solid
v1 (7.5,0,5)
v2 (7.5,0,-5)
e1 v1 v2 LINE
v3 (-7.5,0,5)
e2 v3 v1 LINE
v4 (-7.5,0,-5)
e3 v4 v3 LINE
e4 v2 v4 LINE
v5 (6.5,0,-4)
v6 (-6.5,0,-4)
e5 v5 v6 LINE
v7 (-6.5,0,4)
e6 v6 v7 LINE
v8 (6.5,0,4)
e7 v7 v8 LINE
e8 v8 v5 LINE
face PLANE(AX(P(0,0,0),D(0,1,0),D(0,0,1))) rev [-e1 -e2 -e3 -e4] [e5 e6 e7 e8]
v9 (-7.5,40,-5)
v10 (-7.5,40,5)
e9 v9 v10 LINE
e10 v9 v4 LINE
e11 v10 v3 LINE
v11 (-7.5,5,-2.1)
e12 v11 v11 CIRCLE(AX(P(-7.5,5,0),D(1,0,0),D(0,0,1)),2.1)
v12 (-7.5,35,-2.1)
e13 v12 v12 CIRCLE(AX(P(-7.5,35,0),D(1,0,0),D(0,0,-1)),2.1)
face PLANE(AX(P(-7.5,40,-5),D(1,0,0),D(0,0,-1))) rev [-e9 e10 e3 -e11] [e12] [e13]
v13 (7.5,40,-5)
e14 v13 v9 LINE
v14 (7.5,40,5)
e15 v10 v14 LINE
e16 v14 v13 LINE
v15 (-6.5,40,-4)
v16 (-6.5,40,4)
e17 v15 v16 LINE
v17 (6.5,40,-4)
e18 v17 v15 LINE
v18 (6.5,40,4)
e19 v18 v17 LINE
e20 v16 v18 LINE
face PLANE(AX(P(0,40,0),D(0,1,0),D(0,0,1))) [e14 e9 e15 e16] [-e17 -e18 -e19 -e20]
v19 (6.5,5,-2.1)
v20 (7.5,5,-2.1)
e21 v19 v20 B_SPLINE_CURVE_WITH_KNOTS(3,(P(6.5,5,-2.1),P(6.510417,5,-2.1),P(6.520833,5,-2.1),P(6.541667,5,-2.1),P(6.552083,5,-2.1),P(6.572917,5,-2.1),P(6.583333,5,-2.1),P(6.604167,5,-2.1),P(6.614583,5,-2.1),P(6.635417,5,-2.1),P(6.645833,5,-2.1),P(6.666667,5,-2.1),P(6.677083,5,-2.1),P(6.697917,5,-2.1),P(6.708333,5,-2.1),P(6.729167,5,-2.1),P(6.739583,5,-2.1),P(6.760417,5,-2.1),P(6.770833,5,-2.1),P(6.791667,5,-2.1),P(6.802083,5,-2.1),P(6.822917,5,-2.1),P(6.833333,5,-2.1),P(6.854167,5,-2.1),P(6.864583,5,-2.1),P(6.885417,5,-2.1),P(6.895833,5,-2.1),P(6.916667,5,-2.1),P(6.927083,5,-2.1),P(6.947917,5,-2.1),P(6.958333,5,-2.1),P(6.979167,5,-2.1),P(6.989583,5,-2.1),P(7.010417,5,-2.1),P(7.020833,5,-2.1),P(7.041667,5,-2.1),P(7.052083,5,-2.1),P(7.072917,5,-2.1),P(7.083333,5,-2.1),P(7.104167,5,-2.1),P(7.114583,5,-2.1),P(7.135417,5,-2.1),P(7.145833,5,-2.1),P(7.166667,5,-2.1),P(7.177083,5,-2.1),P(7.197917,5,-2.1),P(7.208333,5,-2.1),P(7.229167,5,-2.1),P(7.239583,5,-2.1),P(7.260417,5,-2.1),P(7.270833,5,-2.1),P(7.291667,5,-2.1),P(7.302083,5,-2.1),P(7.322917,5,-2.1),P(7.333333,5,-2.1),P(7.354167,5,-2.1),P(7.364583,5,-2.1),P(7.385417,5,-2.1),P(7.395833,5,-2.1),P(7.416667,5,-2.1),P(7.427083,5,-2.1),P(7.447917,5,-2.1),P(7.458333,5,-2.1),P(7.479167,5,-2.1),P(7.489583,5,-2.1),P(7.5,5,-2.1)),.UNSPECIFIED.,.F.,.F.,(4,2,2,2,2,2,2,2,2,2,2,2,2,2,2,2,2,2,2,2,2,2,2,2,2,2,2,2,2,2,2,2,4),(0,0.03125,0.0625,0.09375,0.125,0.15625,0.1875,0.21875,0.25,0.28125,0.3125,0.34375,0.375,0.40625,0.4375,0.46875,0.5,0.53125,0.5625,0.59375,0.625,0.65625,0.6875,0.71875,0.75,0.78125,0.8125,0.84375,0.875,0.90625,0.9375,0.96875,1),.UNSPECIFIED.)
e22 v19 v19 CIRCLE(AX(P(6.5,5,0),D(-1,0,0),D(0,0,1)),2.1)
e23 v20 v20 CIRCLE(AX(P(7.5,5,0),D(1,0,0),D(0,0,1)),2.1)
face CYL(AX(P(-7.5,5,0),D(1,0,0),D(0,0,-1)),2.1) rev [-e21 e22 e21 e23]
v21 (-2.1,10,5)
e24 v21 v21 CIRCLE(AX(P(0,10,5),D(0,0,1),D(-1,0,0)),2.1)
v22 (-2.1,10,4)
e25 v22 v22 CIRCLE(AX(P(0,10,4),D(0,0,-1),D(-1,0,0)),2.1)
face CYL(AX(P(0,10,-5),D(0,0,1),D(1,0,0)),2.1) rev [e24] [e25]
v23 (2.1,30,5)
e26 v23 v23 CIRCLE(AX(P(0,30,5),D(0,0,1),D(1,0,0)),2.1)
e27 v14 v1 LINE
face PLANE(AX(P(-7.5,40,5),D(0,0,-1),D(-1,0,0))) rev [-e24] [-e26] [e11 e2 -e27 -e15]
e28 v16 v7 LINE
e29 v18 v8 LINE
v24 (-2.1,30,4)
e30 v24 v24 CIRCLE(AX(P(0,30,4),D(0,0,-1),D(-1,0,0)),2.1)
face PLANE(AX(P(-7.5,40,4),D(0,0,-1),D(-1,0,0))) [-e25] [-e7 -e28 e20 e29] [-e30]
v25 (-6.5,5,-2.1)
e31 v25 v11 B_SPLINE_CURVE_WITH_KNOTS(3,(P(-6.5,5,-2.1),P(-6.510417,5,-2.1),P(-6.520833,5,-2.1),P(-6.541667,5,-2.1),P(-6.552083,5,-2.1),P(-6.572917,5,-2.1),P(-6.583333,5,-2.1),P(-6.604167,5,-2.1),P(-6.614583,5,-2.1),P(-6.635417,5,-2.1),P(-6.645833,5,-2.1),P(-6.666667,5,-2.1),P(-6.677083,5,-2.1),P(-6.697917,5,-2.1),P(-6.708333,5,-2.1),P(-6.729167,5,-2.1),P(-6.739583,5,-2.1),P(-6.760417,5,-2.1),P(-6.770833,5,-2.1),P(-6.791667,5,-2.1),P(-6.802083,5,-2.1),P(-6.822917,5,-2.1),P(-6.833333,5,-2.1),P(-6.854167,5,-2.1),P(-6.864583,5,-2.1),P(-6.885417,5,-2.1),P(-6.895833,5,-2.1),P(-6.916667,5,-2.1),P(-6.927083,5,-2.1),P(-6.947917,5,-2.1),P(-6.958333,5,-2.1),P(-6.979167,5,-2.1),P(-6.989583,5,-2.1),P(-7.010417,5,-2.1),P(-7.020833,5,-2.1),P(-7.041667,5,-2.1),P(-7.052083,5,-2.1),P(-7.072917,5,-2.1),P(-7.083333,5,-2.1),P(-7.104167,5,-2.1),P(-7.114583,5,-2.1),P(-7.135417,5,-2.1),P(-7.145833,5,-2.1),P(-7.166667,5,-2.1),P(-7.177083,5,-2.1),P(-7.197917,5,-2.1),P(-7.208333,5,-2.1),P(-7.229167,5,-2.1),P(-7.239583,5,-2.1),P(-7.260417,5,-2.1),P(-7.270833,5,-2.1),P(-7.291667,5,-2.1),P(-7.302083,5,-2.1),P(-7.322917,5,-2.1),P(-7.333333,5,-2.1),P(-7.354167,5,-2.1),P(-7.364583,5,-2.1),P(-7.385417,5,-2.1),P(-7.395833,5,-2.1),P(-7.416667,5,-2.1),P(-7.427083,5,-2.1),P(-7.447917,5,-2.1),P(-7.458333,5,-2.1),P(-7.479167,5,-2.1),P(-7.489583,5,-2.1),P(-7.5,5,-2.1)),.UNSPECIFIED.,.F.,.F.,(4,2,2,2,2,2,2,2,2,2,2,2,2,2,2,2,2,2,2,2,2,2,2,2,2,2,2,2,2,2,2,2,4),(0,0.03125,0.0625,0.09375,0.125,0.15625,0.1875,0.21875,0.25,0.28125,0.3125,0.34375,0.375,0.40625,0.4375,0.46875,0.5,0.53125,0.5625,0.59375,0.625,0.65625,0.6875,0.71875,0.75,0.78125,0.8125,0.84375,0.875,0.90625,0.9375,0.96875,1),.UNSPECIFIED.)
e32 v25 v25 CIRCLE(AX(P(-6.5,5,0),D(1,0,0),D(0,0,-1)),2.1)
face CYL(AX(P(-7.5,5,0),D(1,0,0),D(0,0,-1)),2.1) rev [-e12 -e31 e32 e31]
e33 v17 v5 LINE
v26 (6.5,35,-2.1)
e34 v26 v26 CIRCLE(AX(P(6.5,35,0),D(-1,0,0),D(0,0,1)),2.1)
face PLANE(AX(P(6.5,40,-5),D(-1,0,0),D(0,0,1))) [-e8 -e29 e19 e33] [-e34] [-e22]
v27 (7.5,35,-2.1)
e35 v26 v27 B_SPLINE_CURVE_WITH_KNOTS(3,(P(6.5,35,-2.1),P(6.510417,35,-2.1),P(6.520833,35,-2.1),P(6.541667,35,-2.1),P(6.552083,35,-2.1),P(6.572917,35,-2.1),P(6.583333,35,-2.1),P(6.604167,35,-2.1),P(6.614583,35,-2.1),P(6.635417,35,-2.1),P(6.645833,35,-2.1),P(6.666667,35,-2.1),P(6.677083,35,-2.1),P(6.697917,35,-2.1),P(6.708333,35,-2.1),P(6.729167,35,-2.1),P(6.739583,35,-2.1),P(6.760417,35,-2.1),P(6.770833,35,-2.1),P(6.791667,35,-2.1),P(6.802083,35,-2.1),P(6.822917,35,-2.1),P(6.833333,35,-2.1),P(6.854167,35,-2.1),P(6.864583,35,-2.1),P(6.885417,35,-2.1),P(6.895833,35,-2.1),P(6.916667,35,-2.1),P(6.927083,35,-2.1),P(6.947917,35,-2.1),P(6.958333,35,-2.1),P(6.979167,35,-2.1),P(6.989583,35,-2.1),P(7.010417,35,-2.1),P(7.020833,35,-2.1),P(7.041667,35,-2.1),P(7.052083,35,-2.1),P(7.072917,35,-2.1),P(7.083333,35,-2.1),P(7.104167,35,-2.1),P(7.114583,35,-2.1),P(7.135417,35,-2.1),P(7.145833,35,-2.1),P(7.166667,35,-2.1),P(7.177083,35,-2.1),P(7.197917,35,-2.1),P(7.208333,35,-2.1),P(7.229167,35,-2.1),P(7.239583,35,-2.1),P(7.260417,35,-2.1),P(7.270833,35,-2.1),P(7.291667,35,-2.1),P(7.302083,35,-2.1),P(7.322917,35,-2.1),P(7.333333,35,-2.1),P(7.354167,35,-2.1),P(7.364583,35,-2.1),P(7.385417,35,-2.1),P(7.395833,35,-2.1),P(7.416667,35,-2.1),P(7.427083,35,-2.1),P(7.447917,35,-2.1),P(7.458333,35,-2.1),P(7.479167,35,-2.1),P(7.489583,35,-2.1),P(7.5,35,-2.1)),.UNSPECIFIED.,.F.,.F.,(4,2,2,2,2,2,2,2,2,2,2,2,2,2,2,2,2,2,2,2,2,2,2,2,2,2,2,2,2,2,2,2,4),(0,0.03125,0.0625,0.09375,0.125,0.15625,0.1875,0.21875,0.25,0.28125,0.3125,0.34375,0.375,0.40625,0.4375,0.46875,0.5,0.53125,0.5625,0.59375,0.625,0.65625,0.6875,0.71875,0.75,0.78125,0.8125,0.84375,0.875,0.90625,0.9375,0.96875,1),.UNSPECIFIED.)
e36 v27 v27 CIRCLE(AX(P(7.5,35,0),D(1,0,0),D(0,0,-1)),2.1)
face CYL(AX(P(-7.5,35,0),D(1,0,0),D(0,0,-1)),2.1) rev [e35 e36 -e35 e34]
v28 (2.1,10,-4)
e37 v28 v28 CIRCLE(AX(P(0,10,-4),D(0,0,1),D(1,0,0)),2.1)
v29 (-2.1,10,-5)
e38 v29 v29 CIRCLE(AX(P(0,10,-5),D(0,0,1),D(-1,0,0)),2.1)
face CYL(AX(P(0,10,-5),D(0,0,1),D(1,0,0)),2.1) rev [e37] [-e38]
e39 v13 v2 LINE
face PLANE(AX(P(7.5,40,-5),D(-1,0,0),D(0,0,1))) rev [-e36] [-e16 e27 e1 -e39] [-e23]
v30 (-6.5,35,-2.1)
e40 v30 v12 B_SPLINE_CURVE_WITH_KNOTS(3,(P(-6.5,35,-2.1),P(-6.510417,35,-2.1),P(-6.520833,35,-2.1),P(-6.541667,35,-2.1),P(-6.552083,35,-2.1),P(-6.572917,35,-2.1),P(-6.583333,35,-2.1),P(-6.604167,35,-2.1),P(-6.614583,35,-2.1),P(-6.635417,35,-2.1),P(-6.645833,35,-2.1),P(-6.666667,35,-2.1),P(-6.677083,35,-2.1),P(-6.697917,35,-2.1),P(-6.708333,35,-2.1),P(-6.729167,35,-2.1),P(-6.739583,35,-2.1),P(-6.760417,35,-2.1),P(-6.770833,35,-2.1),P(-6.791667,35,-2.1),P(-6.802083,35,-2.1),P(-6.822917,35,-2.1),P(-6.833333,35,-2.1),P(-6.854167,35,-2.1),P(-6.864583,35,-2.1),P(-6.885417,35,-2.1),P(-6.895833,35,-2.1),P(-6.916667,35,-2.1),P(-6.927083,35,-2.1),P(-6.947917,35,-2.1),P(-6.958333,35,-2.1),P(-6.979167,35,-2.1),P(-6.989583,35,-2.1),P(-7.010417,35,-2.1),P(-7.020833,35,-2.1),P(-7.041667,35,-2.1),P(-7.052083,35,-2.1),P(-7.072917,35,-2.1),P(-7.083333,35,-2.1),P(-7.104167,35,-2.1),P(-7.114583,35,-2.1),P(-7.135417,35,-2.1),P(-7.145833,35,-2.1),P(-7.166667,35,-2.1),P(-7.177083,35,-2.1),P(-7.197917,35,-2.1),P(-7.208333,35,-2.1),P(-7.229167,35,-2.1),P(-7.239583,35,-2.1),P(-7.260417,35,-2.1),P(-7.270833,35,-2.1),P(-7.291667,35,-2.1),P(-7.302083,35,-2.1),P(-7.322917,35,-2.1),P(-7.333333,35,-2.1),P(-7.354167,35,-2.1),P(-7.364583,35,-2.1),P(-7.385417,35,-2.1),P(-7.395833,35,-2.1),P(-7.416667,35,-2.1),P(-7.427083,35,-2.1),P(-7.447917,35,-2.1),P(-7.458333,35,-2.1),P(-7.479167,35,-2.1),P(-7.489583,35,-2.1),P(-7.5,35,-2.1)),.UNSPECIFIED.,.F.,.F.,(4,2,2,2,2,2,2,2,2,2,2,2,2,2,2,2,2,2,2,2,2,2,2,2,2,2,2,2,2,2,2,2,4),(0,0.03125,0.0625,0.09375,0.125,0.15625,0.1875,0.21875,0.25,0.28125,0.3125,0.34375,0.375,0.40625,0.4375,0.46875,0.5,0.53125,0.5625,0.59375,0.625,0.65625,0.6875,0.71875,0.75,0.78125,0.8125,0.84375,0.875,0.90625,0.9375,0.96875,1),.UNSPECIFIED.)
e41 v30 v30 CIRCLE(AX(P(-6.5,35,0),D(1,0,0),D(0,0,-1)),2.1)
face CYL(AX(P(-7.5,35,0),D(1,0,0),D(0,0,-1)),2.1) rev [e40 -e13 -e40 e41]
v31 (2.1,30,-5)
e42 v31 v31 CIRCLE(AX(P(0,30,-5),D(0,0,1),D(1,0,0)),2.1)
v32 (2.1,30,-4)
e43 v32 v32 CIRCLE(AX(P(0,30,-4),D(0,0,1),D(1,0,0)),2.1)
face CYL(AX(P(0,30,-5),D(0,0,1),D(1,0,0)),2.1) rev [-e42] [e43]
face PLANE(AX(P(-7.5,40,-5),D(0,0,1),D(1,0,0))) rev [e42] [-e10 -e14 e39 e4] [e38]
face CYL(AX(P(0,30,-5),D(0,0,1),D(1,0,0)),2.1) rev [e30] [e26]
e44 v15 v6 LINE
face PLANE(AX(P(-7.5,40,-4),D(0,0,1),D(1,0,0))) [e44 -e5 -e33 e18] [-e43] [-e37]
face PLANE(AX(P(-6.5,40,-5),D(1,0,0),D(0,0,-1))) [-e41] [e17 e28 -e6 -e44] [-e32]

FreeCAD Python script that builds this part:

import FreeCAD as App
import Part
import Sketcher

V = App.Vector


def add_polygon(sketch, points):
    """Adds a closed chain of lines whose ends are joined by coincident constraints."""
    first, n = sketch.GeometryCount, len(points)
    for a, b in zip(points, points[1:] + points[:1]):
        sketch.addGeometry(Part.LineSegment(App.Vector(*a, 0), App.Vector(*b, 0)), False)
    for i in range(n):
        sketch.addConstraint(Sketcher.Constraint("Coincident", first + i, 2, first + (i + 1) % n, 1))

doc = App.newDocument("Part")
body = doc.addObject("PartDesign::Body", "Body")

# Sketch on XZ plane
sketch1 = doc.addObject("Sketcher::SketchObject", "Sketch")
body.addObject(sketch1)
sketch1.AttachmentSupport = (doc.XZ_Plane, [""])
sketch1.MapMode = "FlatFace"
add_polygon(sketch1, [(-8, -5), (-8, 5), (8, 5), (8, -5)])  # lines 0-3
add_polygon(sketch1, [(6, 4), (-6, 4), (-6, -4), (6, -4)])  # lines 4-7
sketch1.addConstraint([
    Sketcher.Constraint("Vertical", 0),
    Sketcher.Constraint("Horizontal", 1),
    Sketcher.Constraint("Vertical", 2),
    Sketcher.Constraint("Horizontal", 3),
    Sketcher.Constraint("Horizontal", 4),
    Sketcher.Constraint("Vertical", 5),
    Sketcher.Constraint("Horizontal", 6),
    Sketcher.Constraint("Vertical", 7),
    Sketcher.Constraint("Symmetric", 0, 2, 2, 2, -1, 1),
    Sketcher.Constraint("Symmetric", 4, 2, 6, 2, -1, 1),
    Sketcher.Constraint("DistanceX", 1, 1, 1, 2, 15.0),
    Sketcher.Constraint("DistanceX", 4, 2, 4, 1, 13.0),
    Sketcher.Constraint("DistanceY", 0, 1, 0, 2, 10.0),
    Sketcher.Constraint("DistanceY", 5, 2, 5, 1, 8.0),
])
pad1 = doc.addObject("PartDesign::Pad", "Pad")
body.addObject(pad1)
pad1.Profile = sketch1
pad1.Length = 40
pad1.Reversed = True

# Sketch on YZ plane
sketch2 = doc.addObject("Sketcher::SketchObject", "Sketch001")
body.addObject(sketch2)
sketch2.AttachmentSupport = (doc.YZ_Plane, [""])
sketch2.MapMode = "FlatFace"
sketch2.AttachmentOffset = App.Placement(V(0, 0, 7.5), App.Rotation())
sketch2.addGeometry([
    Part.Circle(V(35, 0, 0), V(0, 0, 1), 2.1),
    Part.Circle(V(5, 0, 0), V(0, 0, 1), 2.1),
], False)
sketch2.addConstraint([
    Sketcher.Constraint("Equal", 0, 1),
    Sketcher.Constraint("PointOnObject", 0, 3, -1),
    Sketcher.Constraint("PointOnObject", 1, 3, -1),
    Sketcher.Constraint("Diameter", 0, 4.2),
    Sketcher.Constraint("DistanceX", -1, 1, 0, 3, 35.0),
    Sketcher.Constraint("DistanceX", -1, 1, 1, 3, 5.0),
])
pocket1 = doc.addObject("PartDesign::Pocket", "Pocket")
body.addObject(pocket1)
pocket1.Profile = sketch2
pocket1.Type = "ThroughAll"

# Sketch on XY plane
sketch3 = doc.addObject("Sketcher::SketchObject", "Sketch002")
body.addObject(sketch3)
sketch3.AttachmentSupport = (doc.XY_Plane, [""])
sketch3.MapMode = "FlatFace"
sketch3.AttachmentOffset = App.Placement(V(0, 0, 5), App.Rotation())
sketch3.addGeometry([
    Part.Circle(V(0, 30, 0), V(0, 0, 1), 2.1),
    Part.Circle(V(0, 10, 0), V(0, 0, 1), 2.1),
], False)
sketch3.addConstraint([
    Sketcher.Constraint("Equal", 0, 1),
    Sketcher.Constraint("PointOnObject", 0, 3, -2),
    Sketcher.Constraint("PointOnObject", 1, 3, -2),
    Sketcher.Constraint("Diameter", 0, 4.2),
    Sketcher.Constraint("DistanceY", -1, 1, 0, 3, 30.0),
    Sketcher.Constraint("DistanceY", -1, 1, 1, 3, 10.0),
])
pocket2 = doc.addObject("PartDesign::Pocket", "Pocket001")
body.addObject(pocket2)
pocket2.Profile = sketch3
pocket2.Type = "ThroughAll"

doc.recompute()
